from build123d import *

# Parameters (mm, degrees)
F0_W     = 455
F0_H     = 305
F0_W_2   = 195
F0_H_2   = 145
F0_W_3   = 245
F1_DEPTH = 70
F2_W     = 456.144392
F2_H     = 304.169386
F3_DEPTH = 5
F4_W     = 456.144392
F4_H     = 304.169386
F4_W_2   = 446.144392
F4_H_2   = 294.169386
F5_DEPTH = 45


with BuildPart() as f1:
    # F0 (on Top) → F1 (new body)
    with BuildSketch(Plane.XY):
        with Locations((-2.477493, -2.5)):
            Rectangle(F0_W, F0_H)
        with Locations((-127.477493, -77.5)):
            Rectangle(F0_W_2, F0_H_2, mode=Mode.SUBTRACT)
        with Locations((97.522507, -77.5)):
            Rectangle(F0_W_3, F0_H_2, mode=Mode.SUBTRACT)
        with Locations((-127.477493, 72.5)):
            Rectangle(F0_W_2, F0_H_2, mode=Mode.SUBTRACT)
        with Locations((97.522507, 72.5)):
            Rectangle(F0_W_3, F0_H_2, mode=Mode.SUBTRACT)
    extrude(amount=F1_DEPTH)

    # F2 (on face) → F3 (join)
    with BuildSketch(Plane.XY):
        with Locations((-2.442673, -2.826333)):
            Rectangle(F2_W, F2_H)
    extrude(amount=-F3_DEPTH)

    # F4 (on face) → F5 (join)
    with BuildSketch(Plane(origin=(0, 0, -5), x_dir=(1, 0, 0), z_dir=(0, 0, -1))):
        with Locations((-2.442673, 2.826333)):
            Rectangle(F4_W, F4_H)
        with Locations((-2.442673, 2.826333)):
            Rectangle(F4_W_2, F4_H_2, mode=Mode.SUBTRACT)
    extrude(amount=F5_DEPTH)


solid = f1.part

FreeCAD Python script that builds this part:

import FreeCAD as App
import Part
import Sketcher
from FreeCAD import Vector

doc = App.newDocument("Part")
body = doc.addObject("PartDesign::Body", "Body")

# Sketch on XY plane
sketch1 = body.newObject("Sketcher::SketchObject", "Sketch")
sketch1.AttachmentSupport = (doc.getObject("XY_Plane"), [""])
sketch1.MapMode = "FlatFace"
sketch1.addGeometry([
    Part.LineSegment(Vector(-229.977493, 150, 0), Vector(-229.977493, -155, 0)),  # 0
    Part.LineSegment(Vector(-229.977493, -155, 0), Vector(225.022507, -155, 0)),  # 1
    Part.LineSegment(Vector(225.022507, -155, 0), Vector(225.022507, 150, 0)),  # 2
    Part.LineSegment(Vector(225.022507, 150, 0), Vector(-229.977493, 150, 0)),  # 3
    Part.LineSegment(Vector(-29.977493, -150, 0), Vector(-224.977493, -150, 0)),  # 4
    Part.LineSegment(Vector(-224.977493, -150, 0), Vector(-224.977493, -5, 0)),  # 5
    Part.LineSegment(Vector(-224.977493, -5, 0), Vector(-29.977493, -5, 0)),  # 6
    Part.LineSegment(Vector(-29.977493, -5, 0), Vector(-29.977493, -150, 0)),  # 7
    Part.LineSegment(Vector(220.022507, -150, 0), Vector(-24.977493, -150, 0)),  # 8
    Part.LineSegment(Vector(-24.977493, -150, 0), Vector(-24.977493, -5, 0)),  # 9
    Part.LineSegment(Vector(-24.977493, -5, 0), Vector(220.022507, -5, 0)),  # 10
    Part.LineSegment(Vector(220.022507, -5, 0), Vector(220.022507, -150, 0)),  # 11
    Part.LineSegment(Vector(-29.977493, 0, 0), Vector(-224.977493, 0, 0)),  # 12
    Part.LineSegment(Vector(-224.977493, 0, 0), Vector(-224.977493, 145, 0)),  # 13
    Part.LineSegment(Vector(-224.977493, 145, 0), Vector(-29.977493, 145, 0)),  # 14
    Part.LineSegment(Vector(-29.977493, 145, 0), Vector(-29.977493, 0, 0)),  # 15
    Part.LineSegment(Vector(220.022507, 0, 0), Vector(-24.977493, 0, 0)),  # 16
    Part.LineSegment(Vector(-24.977493, 0, 0), Vector(-24.977493, 145, 0)),  # 17
    Part.LineSegment(Vector(-24.977493, 145, 0), Vector(220.022507, 145, 0)),  # 18
    Part.LineSegment(Vector(220.022507, 145, 0), Vector(220.022507, 0, 0)),  # 19
], False)
sketch1.addConstraint([
    Sketcher.Constraint("Coincident", 0, 2, 1, 1),
    Sketcher.Constraint("Coincident", 1, 2, 2, 1),
    Sketcher.Constraint("Coincident", 2, 2, 3, 1),
    Sketcher.Constraint("Coincident", 3, 2, 0, 1),
    Sketcher.Constraint("Coincident", 4, 2, 5, 1),
    Sketcher.Constraint("Coincident", 5, 2, 6, 1),
    Sketcher.Constraint("Coincident", 6, 2, 7, 1),
    Sketcher.Constraint("Coincident", 7, 2, 4, 1),
    Sketcher.Constraint("Coincident", 8, 2, 9, 1),
    Sketcher.Constraint("Coincident", 9, 2, 10, 1),
    Sketcher.Constraint("Coincident", 10, 2, 11, 1),
    Sketcher.Constraint("Coincident", 11, 2, 8, 1),
    Sketcher.Constraint("Coincident", 12, 2, 13, 1),
    Sketcher.Constraint("Coincident", 13, 2, 14, 1),
    Sketcher.Constraint("Coincident", 14, 2, 15, 1),
    Sketcher.Constraint("Coincident", 15, 2, 12, 1),
    Sketcher.Constraint("Coincident", 16, 2, 17, 1),
    Sketcher.Constraint("Coincident", 17, 2, 18, 1),
    Sketcher.Constraint("Coincident", 18, 2, 19, 1),
    Sketcher.Constraint("Coincident", 19, 2, 16, 1),
    Sketcher.Constraint("Vertical", 0),
    Sketcher.Constraint("Horizontal", 1),
    Sketcher.Constraint("Vertical", 2),
    Sketcher.Constraint("Horizontal", 3),
    Sketcher.Constraint("Horizontal", 4),
    Sketcher.Constraint("Vertical", 5),
    Sketcher.Constraint("Horizontal", 6),
    Sketcher.Constraint("Vertical", 7),
    Sketcher.Constraint("Horizontal", 8),
    Sketcher.Constraint("Vertical", 9),
    Sketcher.Constraint("Horizontal", 10),
    Sketcher.Constraint("Vertical", 11),
    Sketcher.Constraint("Horizontal", 12),
    Sketcher.Constraint("Vertical", 13),
    Sketcher.Constraint("Horizontal", 14),
    Sketcher.Constraint("Vertical", 15),
    Sketcher.Constraint("Horizontal", 16),
    Sketcher.Constraint("Vertical", 17),
    Sketcher.Constraint("Horizontal", 18),
    Sketcher.Constraint("Vertical", 19),
    Sketcher.Constraint("PointOnObject", 12, 2, -1),
    Sketcher.Constraint("PointOnObject", 16, 2, -1),
    Sketcher.Constraint("Horizontal", 7, 2, 8, 2),
    Sketcher.Constraint("Horizontal", 6, 2, 9, 2),
    Sketcher.Constraint("Horizontal", 14, 2, 17, 2),
    Sketcher.Constraint("Vertical", 5, 2, 12, 2),
    Sketcher.Constraint("Vertical", 7, 2, 14, 2),
    Sketcher.Constraint("Vertical", 9, 2, 16, 2),
    Sketcher.Constraint("Vertical", 11, 2, 18, 2),
    Sketcher.Constraint("Equal", 11, 13),
    Sketcher.Constraint("DistanceX", 1, 1, 1, 2, 455.0),
    Sketcher.Constraint("DistanceX", 4, 2, 4, 1, 195.0),
    Sketcher.Constraint("DistanceX", 8, 2, 8, 1, 245.0),
    Sketcher.Constraint("DistanceY", 0, 2, 0, 1, 305.0),
    Sketcher.Constraint("DistanceY", 5, 1, 5, 2, 145.0),
    Sketcher.Constraint("DistanceY", 0, 2, -1, 1, 155.0),
    Sketcher.Constraint("DistanceY", 4, 2, -1, 1, 150.0),
    Sketcher.Constraint("DistanceX", 0, 2, 4, 2, 5.0),
    Sketcher.Constraint("DistanceX", 7, 2, 8, 2, 5.0),
    Sketcher.Constraint("DistanceX", 0, 2, -1, 1, 229.977493),
])
pad1 = body.newObject("PartDesign::Pad", "Pad")
pad1.Profile = sketch1
pad1.Length = 70

# Sketch on XY plane
sketch2 = body.newObject("Sketcher::SketchObject", "Sketch001")
sketch2.AttachmentSupport = (doc.getObject("XY_Plane"), [""])
sketch2.MapMode = "FlatFace"
sketch2.addGeometry([
    Part.LineSegment(Vector(-230.514869, 149.25836, 0), Vector(-230.514869, -154.911026, 0)),
    Part.LineSegment(Vector(-230.514869, -154.911026, 0), Vector(225.629523, -154.911026, 0)),
    Part.LineSegment(Vector(225.629523, -154.911026, 0), Vector(225.629523, 149.25836, 0)),
    Part.LineSegment(Vector(225.629523, 149.25836, 0), Vector(-230.514869, 149.25836, 0)),
], False)
sketch2.addConstraint([
    Sketcher.Constraint("Coincident", 0, 2, 1, 1),
    Sketcher.Constraint("Coincident", 1, 2, 2, 1),
    Sketcher.Constraint("Coincident", 2, 2, 3, 1),
    Sketcher.Constraint("Coincident", 3, 2, 0, 1),
    Sketcher.Constraint("Vertical", 0),
    Sketcher.Constraint("Horizontal", 1),
    Sketcher.Constraint("Vertical", 2),
    Sketcher.Constraint("Horizontal", 3),
    Sketcher.Constraint("DistanceX", 1, 1, 1, 2, 456.144392),
    Sketcher.Constraint("DistanceY", 0, 2, 0, 1, 304.169386),
    Sketcher.Constraint("DistanceX", 0, 2, -1, 1, 230.514869),
    Sketcher.Constraint("DistanceY", -1, 1, 2, 2, 149.25836),
])
pad2 = body.newObject("PartDesign::Pad", "Pad001")
pad2.Profile = sketch2
pad2.Length = 5
pad2.Reversed = True

# Sketch on XY plane
sketch3 = body.newObject("Sketcher::SketchObject", "Sketch002")
sketch3.AttachmentSupport = (doc.getObject("XY_Plane"), [""])
sketch3.MapMode = "FlatFace"
sketch3.AttachmentOffset = App.Placement(Vector(0, 0, -5), App.Rotation())
sketch3.addGeometry([
    Part.LineSegment(Vector(-230.514869, -154.911026, 0), Vector(-230.514869, 149.25836, 0)),  # 0
    Part.LineSegment(Vector(-230.514869, 149.25836, 0), Vector(225.629523, 149.25836, 0)),  # 1
    Part.LineSegment(Vector(225.629523, 149.25836, 0), Vector(225.629523, -154.911026, 0)),  # 2
    Part.LineSegment(Vector(225.629523, -154.911026, 0), Vector(-230.514869, -154.911026, 0)),  # 3
    Part.LineSegment(Vector(220.629523, 144.25836, 0), Vector(-225.514869, 144.25836, 0)),  # 4
    Part.LineSegment(Vector(-225.514869, 144.25836, 0), Vector(-225.514869, -149.911026, 0)),  # 5
    Part.LineSegment(Vector(-225.514869, -149.911026, 0), Vector(220.629523, -149.911026, 0)),  # 6
    Part.LineSegment(Vector(220.629523, -149.911026, 0), Vector(220.629523, 144.25836, 0)),  # 7
], False)
sketch3.addConstraint([
    Sketcher.Constraint("Coincident", 0, 2, 1, 1),
    Sketcher.Constraint("Coincident", 1, 2, 2, 1),
    Sketcher.Constraint("Coincident", 2, 2, 3, 1),
    Sketcher.Constraint("Coincident", 3, 2, 0, 1),
    Sketcher.Constraint("Coincident", 4, 2, 5, 1),
    Sketcher.Constraint("Coincident", 5, 2, 6, 1),
    Sketcher.Constraint("Coincident", 6, 2, 7, 1),
    Sketcher.Constraint("Coincident", 7, 2, 4, 1),
    Sketcher.Constraint("Vertical", 0),
    Sketcher.Constraint("Horizontal", 1),
    Sketcher.Constraint("Vertical", 2),
    Sketcher.Constraint("Horizontal", 3),
    Sketcher.Constraint("Horizontal", 4),
    Sketcher.Constraint("Vertical", 5),
    Sketcher.Constraint("Horizontal", 6),
    Sketcher.Constraint("Vertical", 7),
    Sketcher.Constraint("DistanceX", 0, 2, 4, 2, 5.0),
    Sketcher.Constraint("DistanceY", 4, 2, 0, 2, 5.0),
    Sketcher.Constraint("DistanceY", 3, 2, 5, 2, 5.0),
    Sketcher.Constraint("DistanceX", 6, 2, 2, 2, 5.0),
    Sketcher.Constraint("DistanceX", 1, 1, 1, 2, 456.144392),
    Sketcher.Constraint("DistanceY", 0, 1, 0, 2, 304.169386),
    Sketcher.Constraint("DistanceX", 0, 2, -1, 1, 230.514869),
    Sketcher.Constraint("DistanceY", -1, 1, 0, 2, 149.25836),
])
pad3 = body.newObject("PartDesign::Pad", "Pad002")
pad3.Profile = sketch3
pad3.Length = 45
pad3.Reversed = True

doc.recompute()
